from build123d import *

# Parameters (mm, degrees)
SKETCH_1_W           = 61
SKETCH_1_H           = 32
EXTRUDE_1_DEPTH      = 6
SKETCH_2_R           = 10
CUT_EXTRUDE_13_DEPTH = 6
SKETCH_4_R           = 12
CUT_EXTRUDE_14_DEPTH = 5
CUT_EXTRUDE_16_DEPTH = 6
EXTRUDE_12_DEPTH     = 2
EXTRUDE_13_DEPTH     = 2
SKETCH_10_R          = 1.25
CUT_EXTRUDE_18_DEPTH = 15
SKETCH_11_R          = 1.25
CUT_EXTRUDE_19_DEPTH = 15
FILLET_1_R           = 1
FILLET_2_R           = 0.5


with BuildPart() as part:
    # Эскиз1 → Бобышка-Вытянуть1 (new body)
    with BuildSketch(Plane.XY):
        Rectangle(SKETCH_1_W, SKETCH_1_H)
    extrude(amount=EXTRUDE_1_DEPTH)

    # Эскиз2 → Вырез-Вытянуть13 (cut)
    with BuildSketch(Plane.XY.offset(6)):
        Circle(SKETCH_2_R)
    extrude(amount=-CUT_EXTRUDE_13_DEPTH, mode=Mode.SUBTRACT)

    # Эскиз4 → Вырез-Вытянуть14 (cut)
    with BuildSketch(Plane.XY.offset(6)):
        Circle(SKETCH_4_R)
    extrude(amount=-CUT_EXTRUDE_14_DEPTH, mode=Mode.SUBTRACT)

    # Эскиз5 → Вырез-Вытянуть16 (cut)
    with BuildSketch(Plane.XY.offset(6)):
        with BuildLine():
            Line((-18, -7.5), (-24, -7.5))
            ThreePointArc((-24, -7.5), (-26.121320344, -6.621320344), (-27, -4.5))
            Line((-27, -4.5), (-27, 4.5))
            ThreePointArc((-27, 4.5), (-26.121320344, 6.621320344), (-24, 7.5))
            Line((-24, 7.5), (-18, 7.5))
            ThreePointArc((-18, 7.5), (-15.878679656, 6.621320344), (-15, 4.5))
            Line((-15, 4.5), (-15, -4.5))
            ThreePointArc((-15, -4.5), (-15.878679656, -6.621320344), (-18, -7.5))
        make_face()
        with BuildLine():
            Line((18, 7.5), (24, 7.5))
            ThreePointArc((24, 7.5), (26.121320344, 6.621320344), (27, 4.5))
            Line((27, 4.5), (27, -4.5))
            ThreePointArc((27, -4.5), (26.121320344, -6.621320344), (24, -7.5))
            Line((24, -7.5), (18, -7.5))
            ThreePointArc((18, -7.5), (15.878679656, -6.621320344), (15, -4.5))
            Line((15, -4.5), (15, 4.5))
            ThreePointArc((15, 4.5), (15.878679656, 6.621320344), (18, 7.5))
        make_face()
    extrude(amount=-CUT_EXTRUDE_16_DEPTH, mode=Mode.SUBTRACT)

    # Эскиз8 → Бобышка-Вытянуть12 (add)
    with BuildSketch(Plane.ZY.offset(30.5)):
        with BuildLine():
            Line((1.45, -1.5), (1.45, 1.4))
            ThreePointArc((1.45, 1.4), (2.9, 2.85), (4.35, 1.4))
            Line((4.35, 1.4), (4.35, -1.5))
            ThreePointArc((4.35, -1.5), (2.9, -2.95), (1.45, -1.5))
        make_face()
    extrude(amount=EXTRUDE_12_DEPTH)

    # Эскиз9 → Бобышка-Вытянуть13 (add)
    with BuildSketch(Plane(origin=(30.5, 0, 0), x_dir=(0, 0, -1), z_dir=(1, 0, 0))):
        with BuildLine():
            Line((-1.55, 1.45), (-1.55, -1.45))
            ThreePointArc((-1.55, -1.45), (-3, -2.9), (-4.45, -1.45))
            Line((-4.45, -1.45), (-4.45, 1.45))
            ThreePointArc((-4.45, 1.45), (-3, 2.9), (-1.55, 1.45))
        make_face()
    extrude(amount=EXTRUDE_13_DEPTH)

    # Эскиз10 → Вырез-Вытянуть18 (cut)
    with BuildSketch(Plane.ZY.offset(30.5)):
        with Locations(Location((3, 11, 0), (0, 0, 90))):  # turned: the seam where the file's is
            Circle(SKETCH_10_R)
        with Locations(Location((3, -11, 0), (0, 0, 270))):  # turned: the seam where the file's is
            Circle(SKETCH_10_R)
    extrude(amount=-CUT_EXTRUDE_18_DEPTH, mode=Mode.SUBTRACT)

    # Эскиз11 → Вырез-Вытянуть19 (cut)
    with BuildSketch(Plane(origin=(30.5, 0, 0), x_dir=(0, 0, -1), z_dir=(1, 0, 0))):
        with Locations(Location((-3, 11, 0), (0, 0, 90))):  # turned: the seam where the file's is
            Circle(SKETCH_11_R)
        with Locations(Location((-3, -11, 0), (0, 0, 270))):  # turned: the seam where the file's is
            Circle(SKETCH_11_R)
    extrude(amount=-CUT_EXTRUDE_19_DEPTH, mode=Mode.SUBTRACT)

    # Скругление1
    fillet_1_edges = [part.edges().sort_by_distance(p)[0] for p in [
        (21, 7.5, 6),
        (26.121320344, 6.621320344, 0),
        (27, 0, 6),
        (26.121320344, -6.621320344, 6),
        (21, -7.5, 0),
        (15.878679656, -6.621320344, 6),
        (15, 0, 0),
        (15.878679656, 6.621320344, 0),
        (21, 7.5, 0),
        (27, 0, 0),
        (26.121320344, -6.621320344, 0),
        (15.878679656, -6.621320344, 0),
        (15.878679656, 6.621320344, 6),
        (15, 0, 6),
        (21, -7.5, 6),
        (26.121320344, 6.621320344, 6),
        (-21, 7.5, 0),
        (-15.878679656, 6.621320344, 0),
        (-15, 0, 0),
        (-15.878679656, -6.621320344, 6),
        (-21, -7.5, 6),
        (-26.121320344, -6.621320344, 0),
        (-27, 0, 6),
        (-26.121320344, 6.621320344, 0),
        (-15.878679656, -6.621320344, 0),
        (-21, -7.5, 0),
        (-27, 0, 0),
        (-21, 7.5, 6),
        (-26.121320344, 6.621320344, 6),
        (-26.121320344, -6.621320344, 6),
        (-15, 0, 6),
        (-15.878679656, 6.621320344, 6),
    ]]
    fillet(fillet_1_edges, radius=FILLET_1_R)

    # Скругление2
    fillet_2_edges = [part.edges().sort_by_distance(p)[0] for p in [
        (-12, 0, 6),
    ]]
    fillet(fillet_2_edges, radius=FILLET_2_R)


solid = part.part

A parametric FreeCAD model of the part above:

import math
import FreeCAD as App
import Part
import Sketcher
Q = App.Units.Quantity


def edges_at(feature, points):
    """Names of the edges that pass closest to the given points."""
    edges = feature.Shape.Edges
    near = lambda p: min(range(len(edges)), key=lambda i: edges[i].distToShape(Part.Vertex(*p))[0])
    return sorted({f"Edge{near(p) + 1}" for p in points})


def add_polygon(sketch, points):
    """Adds a closed chain of lines whose ends are joined by coincident constraints."""
    first, n = sketch.GeometryCount, len(points)
    for a, b in zip(points, points[1:] + points[:1]):
        sketch.addGeometry(Part.LineSegment(App.Vector(*a, 0), App.Vector(*b, 0)), False)
    for i in range(n):
        sketch.addConstraint(Sketcher.Constraint("Coincident", first + i, 2, first + (i + 1) % n, 1))

doc = App.newDocument("Part")
params = doc.addObject("Spreadsheet::Sheet", "Params")
for row, (alias, value) in enumerate([
    ("sketch1_width", "61 mm"),
    ("sketch1_height", "32 mm"),
    ("pad1_length", "6 mm"),
    ("sketch2_diameter", "20 mm"),
    ("pocket1_length", "6 mm"),
    ("sketch3_diameter", "24 mm"),
    ("pocket2_length", "5 mm"),
    ("sketch4_radius", "3 mm"),
    ("sketch4_width", "6 mm"),
    ("sketch4_height", "9 mm"),
    ("pocket3_length", "6 mm"),
    ("sketch5_radius", "1.45 mm"),
    ("sketch5_width", "2.9 mm"),
    ("pad2_length", "2 mm"),
    ("sketch6_radius", "1.45 mm"),
    ("sketch6_width", "2.9 mm"),
    ("pad3_length", "2 mm"),
    ("sketch7_diameter", "2.5 mm"),
    ("pocket4_length", "15 mm"),
    ("sketch8_diameter", "2.5 mm"),
    ("pocket5_length", "15 mm"),
    ("fillet_radius", "1 mm"),
    ("fillet2_radius", "0.5 mm"),
], start=1):
    params.set(f"A{row}", alias)
    params.set(f"B{row}", "=" + value)
    params.setAlias(f"B{row}", alias)

body = doc.addObject("PartDesign::Body", "Body")

sketch1 = body.newObject("Sketcher::SketchObject", "Sketch")
sketch1.AttachmentSupport = (doc.getObject("XY_Plane"), [""])
sketch1.MapMode = "FlatFace"
add_polygon(sketch1, [(-30.5, 16), (-30.5, -16), (30.5, -16), (30.5, 16)])
sketch1.addConstraint(Sketcher.Constraint("Vertical", 0))
sketch1.addConstraint(Sketcher.Constraint("Horizontal", 1))
sketch1.addConstraint(Sketcher.Constraint("Vertical", 2))
sketch1.addConstraint(Sketcher.Constraint("Horizontal", 3))
sketch1.addConstraint(Sketcher.Constraint("Symmetric", 0, 2, 2, 2, -1, 1))
sketch1.addConstraint(Sketcher.Constraint("DistanceX", 1, 1, 1, 2, Q("61 mm")))
sketch1.addConstraint(Sketcher.Constraint("DistanceY", 0, 2, 0, 1, Q("32 mm")))
sketch1.setExpression("Constraints[9]", "Params.sketch1_width")
sketch1.setExpression("Constraints[10]", "Params.sketch1_height")
pad1 = body.newObject("PartDesign::Pad", "Pad")
pad1.Profile = sketch1
pad1.setExpression("Length", "Params.pad1_length")

sketch2 = body.newObject("Sketcher::SketchObject", "Sketch001")
sketch2.AttachmentSupport = (doc.getObject("XY_Plane"), [""])
sketch2.MapMode = "FlatFace"
sketch2.AttachmentOffset = App.Placement(App.Vector(0, 0, 6), App.Rotation())
sketch2.addGeometry(Part.Circle(App.Vector(0, 0, 0), App.Vector(0, 0, 1), 10), False)
sketch2.addConstraint(Sketcher.Constraint("Coincident", 0, 3, -1, 1))
sketch2.addConstraint(Sketcher.Constraint("Diameter", 0, Q("20 mm")))
sketch2.setExpression("Constraints[1]", "Params.sketch2_diameter")
pocket1 = body.newObject("PartDesign::Pocket", "Pocket")
pocket1.Profile = sketch2
pocket1.setExpression("Length", "Params.pocket1_length")

sketch3 = body.newObject("Sketcher::SketchObject", "Sketch002")
sketch3.AttachmentSupport = (doc.getObject("XY_Plane"), [""])
sketch3.MapMode = "FlatFace"
sketch3.AttachmentOffset = App.Placement(App.Vector(0, 0, 6), App.Rotation())
sketch3.addGeometry(Part.Circle(App.Vector(0, 0, 0), App.Vector(0, 0, 1), 12), False)
sketch3.addConstraint(Sketcher.Constraint("Coincident", 0, 3, -1, 1))
sketch3.addConstraint(Sketcher.Constraint("Diameter", 0, Q("24 mm")))
sketch3.setExpression("Constraints[1]", "Params.sketch3_diameter")
pocket2 = body.newObject("PartDesign::Pocket", "Pocket001")
pocket2.Profile = sketch3
pocket2.setExpression("Length", "Params.pocket2_length")

sketch4 = body.newObject("Sketcher::SketchObject", "Sketch003")
sketch4.AttachmentSupport = (doc.getObject("XY_Plane"), [""])
sketch4.MapMode = "FlatFace"
sketch4.AttachmentOffset = App.Placement(App.Vector(0, 0, 6), App.Rotation())
sketch4.addGeometry(Part.LineSegment(App.Vector(-24, -7.5, 0), App.Vector(-18, -7.5, 0)), False)
sketch4.addGeometry(Part.ArcOfCircle(Part.Circle(App.Vector(-18, -4.5, 0), App.Vector(0, 0, 1), 3), math.radians(-90), math.radians(0)), False)
sketch4.addGeometry(Part.LineSegment(App.Vector(-15, -4.5, 0), App.Vector(-15, 4.5, 0)), False)
sketch4.addGeometry(Part.ArcOfCircle(Part.Circle(App.Vector(-18, 4.5, 0), App.Vector(0, 0, 1), 3), math.radians(0), math.radians(90)), False)
sketch4.addGeometry(Part.LineSegment(App.Vector(-18, 7.5, 0), App.Vector(-24, 7.5, 0)), False)
sketch4.addGeometry(Part.ArcOfCircle(Part.Circle(App.Vector(-24, 4.5, 0), App.Vector(0, 0, 1), 3), math.radians(90), math.radians(180)), False)
sketch4.addGeometry(Part.LineSegment(App.Vector(-27, 4.5, 0), App.Vector(-27, -4.5, 0)), False)
sketch4.addGeometry(Part.ArcOfCircle(Part.Circle(App.Vector(-24, -4.5, 0), App.Vector(0, 0, 1), 3), math.radians(180), math.radians(270)), False)
sketch4.addGeometry(Part.LineSegment(App.Vector(24, 7.5, 0), App.Vector(18, 7.5, 0)), False)
sketch4.addGeometry(Part.ArcOfCircle(Part.Circle(App.Vector(18, 4.5, 0), App.Vector(0, 0, 1), 3), math.radians(90), math.radians(180)), False)
sketch4.addGeometry(Part.LineSegment(App.Vector(15, 4.5, 0), App.Vector(15, -4.5, 0)), False)
sketch4.addGeometry(Part.ArcOfCircle(Part.Circle(App.Vector(18, -4.5, 0), App.Vector(0, 0, 1), 3), math.radians(180), math.radians(270)), False)
sketch4.addGeometry(Part.LineSegment(App.Vector(18, -7.5, 0), App.Vector(24, -7.5, 0)), False)
sketch4.addGeometry(Part.ArcOfCircle(Part.Circle(App.Vector(24, -4.5, 0), App.Vector(0, 0, 1), 3), math.radians(-90), math.radians(0)), False)
sketch4.addGeometry(Part.LineSegment(App.Vector(27, -4.5, 0), App.Vector(27, 4.5, 0)), False)
sketch4.addGeometry(Part.ArcOfCircle(Part.Circle(App.Vector(24, 4.5, 0), App.Vector(0, 0, 1), 3), math.radians(0), math.radians(90)), False)
sketch4.addConstraint(Sketcher.Constraint("Tangent", 0, 2, 1, 1))
sketch4.addConstraint(Sketcher.Constraint("Tangent", 1, 2, 2, 1))
sketch4.addConstraint(Sketcher.Constraint("Tangent", 2, 2, 3, 1))
sketch4.addConstraint(Sketcher.Constraint("Tangent", 3, 2, 4, 1))
sketch4.addConstraint(Sketcher.Constraint("Tangent", 4, 2, 5, 1))
sketch4.addConstraint(Sketcher.Constraint("Tangent", 5, 2, 6, 1))
sketch4.addConstraint(Sketcher.Constraint("Tangent", 6, 2, 7, 1))
sketch4.addConstraint(Sketcher.Constraint("Tangent", 7, 2, 0, 1))
sketch4.addConstraint(Sketcher.Constraint("Tangent", 8, 2, 9, 1))
sketch4.addConstraint(Sketcher.Constraint("Tangent", 9, 2, 10, 1))
sketch4.addConstraint(Sketcher.Constraint("Tangent", 10, 2, 11, 1))
sketch4.addConstraint(Sketcher.Constraint("Tangent", 11, 2, 12, 1))
sketch4.addConstraint(Sketcher.Constraint("Tangent", 12, 2, 13, 1))
sketch4.addConstraint(Sketcher.Constraint("Tangent", 13, 2, 14, 1))
sketch4.addConstraint(Sketcher.Constraint("Tangent", 14, 2, 15, 1))
sketch4.addConstraint(Sketcher.Constraint("Tangent", 15, 2, 8, 1))
sketch4.addConstraint(Sketcher.Constraint("Horizontal", 0))
sketch4.addConstraint(Sketcher.Constraint("Vertical", 2))
sketch4.addConstraint(Sketcher.Constraint("Horizontal", 4))
sketch4.addConstraint(Sketcher.Constraint("Vertical", 6))
sketch4.addConstraint(Sketcher.Constraint("Horizontal", 8))
sketch4.addConstraint(Sketcher.Constraint("Vertical", 10))
sketch4.addConstraint(Sketcher.Constraint("Horizontal", 12))
sketch4.addConstraint(Sketcher.Constraint("Vertical", 14))
sketch4.addConstraint(Sketcher.Constraint("Equal", 1, 3))
sketch4.addConstraint(Sketcher.Constraint("Equal", 3, 5))
sketch4.addConstraint(Sketcher.Constraint("Equal", 5, 7))
sketch4.addConstraint(Sketcher.Constraint("Equal", 7, 9))
sketch4.addConstraint(Sketcher.Constraint("Equal", 9, 11))
sketch4.addConstraint(Sketcher.Constraint("Equal", 11, 13))
sketch4.addConstraint(Sketcher.Constraint("Equal", 13, 15))
sketch4.addConstraint(Sketcher.Constraint("Symmetric", 1, 3, 9, 3, -1, 1))
sketch4.addConstraint(Sketcher.Constraint("Symmetric", 5, 3, 13, 3, -1, 1))
sketch4.addConstraint(Sketcher.Constraint("Horizontal", 5, 3, 9, 3))
sketch4.addConstraint(Sketcher.Constraint("Radius", 1, Q("3 mm")))
sketch4.addConstraint(Sketcher.Constraint("DistanceX", 0, 1, 0, 2, Q("6 mm")))
sketch4.addConstraint(Sketcher.Constraint("DistanceY", 2, 1, 2, 2, Q("9 mm")))
sketch4.addConstraint(Sketcher.Constraint("DistanceX", 1, 3, -1, 1, Q("18 mm")))
sketch4.setExpression("Constraints[34]", "Params.sketch4_radius")
sketch4.setExpression("Constraints[35]", "Params.sketch4_width")
sketch4.setExpression("Constraints[36]", "Params.sketch4_height")
pocket3 = body.newObject("PartDesign::Pocket", "Pocket002")
pocket3.Profile = sketch4
pocket3.setExpression("Length", "Params.pocket3_length")

sketch5 = body.newObject("Sketcher::SketchObject", "Sketch004")
sketch5.AttachmentSupport = (doc.getObject("YZ_Plane"), [""])
sketch5.MapMode = "FlatFace"
sketch5.AttachmentOffset = App.Placement(App.Vector(0, 0, -30.5), App.Rotation())
sketch5.addGeometry(Part.LineSegment(App.Vector(1.4, 1.45, 0), App.Vector(-1.5, 1.45, 0)), False)
sketch5.addGeometry(Part.ArcOfCircle(Part.Circle(App.Vector(-1.5, 2.9, 0), App.Vector(0, 0, 1), 1.45), math.radians(90), math.radians(270)), False)
sketch5.addGeometry(Part.LineSegment(App.Vector(-1.5, 4.35, 0), App.Vector(1.4, 4.35, 0)), False)
sketch5.addGeometry(Part.ArcOfCircle(Part.Circle(App.Vector(1.4, 2.9, 0), App.Vector(0, 0, 1), 1.45), math.radians(-90), math.radians(90)), False)
sketch5.addConstraint(Sketcher.Constraint("Tangent", 0, 2, 1, 2))
sketch5.addConstraint(Sketcher.Constraint("Tangent", 1, 1, 2, 1))
sketch5.addConstraint(Sketcher.Constraint("Tangent", 2, 2, 3, 2))
sketch5.addConstraint(Sketcher.Constraint("Tangent", 3, 1, 0, 1))
sketch5.addConstraint(Sketcher.Constraint("Horizontal", 0))
sketch5.addConstraint(Sketcher.Constraint("Horizontal", 2))
sketch5.addConstraint(Sketcher.Constraint("Radius", 1, Q("1.45 mm")))
sketch5.addConstraint(Sketcher.Constraint("DistanceX", 0, 2, 0, 1, Q("2.9 mm")))
sketch5.addConstraint(Sketcher.Constraint("DistanceX", 1, 3, -1, 1, Q("1.5 mm")))
sketch5.addConstraint(Sketcher.Constraint("DistanceY", -1, 1, 1, 3, Q("2.9 mm")))
sketch5.setExpression("Constraints[6]", "Params.sketch5_radius")
sketch5.setExpression("Constraints[7]", "Params.sketch5_width")
pad2 = body.newObject("PartDesign::Pad", "Pad001")
pad2.Profile = sketch5
pad2.setExpression("Length", "Params.pad2_length")
pad2.Reversed = True

sketch6 = body.newObject("Sketcher::SketchObject", "Sketch005")
sketch6.AttachmentSupport = (doc.getObject("YZ_Plane"), [""])
sketch6.MapMode = "FlatFace"
sketch6.AttachmentOffset = App.Placement(App.Vector(0, 0, 30.5), App.Rotation())
sketch6.addGeometry(Part.LineSegment(App.Vector(-1.45, 1.55, 0), App.Vector(1.45, 1.55, 0)), False)
sketch6.addGeometry(Part.ArcOfCircle(Part.Circle(App.Vector(1.45, 3, 0), App.Vector(0, 0, 1), 1.45), math.radians(-90), math.radians(90)), False)
sketch6.addGeometry(Part.LineSegment(App.Vector(1.45, 4.45, 0), App.Vector(-1.45, 4.45, 0)), False)
sketch6.addGeometry(Part.ArcOfCircle(Part.Circle(App.Vector(-1.45, 3, 0), App.Vector(0, 0, 1), 1.45), math.radians(90), math.radians(270)), False)
sketch6.addConstraint(Sketcher.Constraint("Tangent", 0, 2, 1, 1))
sketch6.addConstraint(Sketcher.Constraint("Tangent", 1, 2, 2, 1))
sketch6.addConstraint(Sketcher.Constraint("Tangent", 2, 2, 3, 1))
sketch6.addConstraint(Sketcher.Constraint("Tangent", 3, 2, 0, 1))
sketch6.addConstraint(Sketcher.Constraint("Horizontal", 0))
sketch6.addConstraint(Sketcher.Constraint("Horizontal", 2))
sketch6.addConstraint(Sketcher.Constraint("Radius", 1, Q("1.45 mm")))
sketch6.addConstraint(Sketcher.Constraint("DistanceX", 0, 1, 0, 2, Q("2.9 mm")))
sketch6.addConstraint(Sketcher.Constraint("DistanceY", -1, 1, 1, 3, Q("3 mm")))
sketch6.addConstraint(Sketcher.Constraint("DistanceX", -1, 1, 1, 3, Q("1.45 mm")))
sketch6.setExpression("Constraints[6]", "Params.sketch6_radius")
sketch6.setExpression("Constraints[7]", "Params.sketch6_width")
pad3 = body.newObject("PartDesign::Pad", "Pad002")
pad3.Profile = sketch6
pad3.setExpression("Length", "Params.pad3_length")

sketch7 = body.newObject("Sketcher::SketchObject", "Sketch006")
sketch7.AttachmentSupport = (doc.getObject("YZ_Plane"), [""])
sketch7.MapMode = "FlatFace"
sketch7.AttachmentOffset = App.Placement(App.Vector(0, 0, -30.5), App.Rotation())
sketch7.addGeometry(Part.Circle(App.Vector(11, 3, 0), App.Vector(0, 0, 1), 1.25), False)
sketch7.addGeometry(Part.Circle(App.Vector(-11, 3, 0), App.Vector(0, 0, 1), 1.25), False)
sketch7.addConstraint(Sketcher.Constraint("Equal", 0, 1))
sketch7.addConstraint(Sketcher.Constraint("Symmetric", 0, 3, 1, 3, -2))
sketch7.addConstraint(Sketcher.Constraint("Diameter", 0, Q("2.5 mm")))
sketch7.addConstraint(Sketcher.Constraint("DistanceX", -1, 1, 0, 3, Q("11 mm")))
sketch7.addConstraint(Sketcher.Constraint("DistanceY", -1, 1, 0, 3, Q("3 mm")))
sketch7.setExpression("Constraints[2]", "Params.sketch7_diameter")
pocket4 = body.newObject("PartDesign::Pocket", "Pocket003")
pocket4.Profile = sketch7
pocket4.setExpression("Length", "Params.pocket4_length")
pocket4.Reversed = True

sketch8 = body.newObject("Sketcher::SketchObject", "Sketch007")
sketch8.AttachmentSupport = (doc.getObject("YZ_Plane"), [""])
sketch8.MapMode = "FlatFace"
sketch8.AttachmentOffset = App.Placement(App.Vector(0, 0, 30.5), App.Rotation())
sketch8.addGeometry(Part.Circle(App.Vector(11, 3, 0), App.Vector(0, 0, 1), 1.25), False)
sketch8.addGeometry(Part.Circle(App.Vector(-11, 3, 0), App.Vector(0, 0, 1), 1.25), False)
sketch8.addConstraint(Sketcher.Constraint("Equal", 0, 1))
sketch8.addConstraint(Sketcher.Constraint("Symmetric", 0, 3, 1, 3, -2))
sketch8.addConstraint(Sketcher.Constraint("Diameter", 0, Q("2.5 mm")))
sketch8.addConstraint(Sketcher.Constraint("DistanceX", -1, 1, 0, 3, Q("11 mm")))
sketch8.addConstraint(Sketcher.Constraint("DistanceY", -1, 1, 0, 3, Q("3 mm")))
sketch8.setExpression("Constraints[2]", "Params.sketch8_diameter")
pocket5 = body.newObject("PartDesign::Pocket", "Pocket004")
pocket5.Profile = sketch8
pocket5.setExpression("Length", "Params.pocket5_length")
doc.recompute()

fillet = body.newObject("PartDesign::Fillet", "Fillet")
fillet.Base = (pocket5, edges_at(pocket5, [
    (21, 7.5, 6),
    (26.121, 6.621, 0),
    (27, 0, 6),
    (26.121, -6.621, 6),
    (21, -7.5, 0),
    (15.879, -6.621, 6),
    (15, 0, 0),
    (15.879, 6.621, 0),
    (21, 7.5, 0),
    (27, 0, 0),
    (26.121, -6.621, 0),
    (15.879, -6.621, 0),
    (15.879, 6.621, 6),
    (15, 0, 6),
    (21, -7.5, 6),
    (26.121, 6.621, 6),
    (-21, 7.5, 0),
    (-15.879, 6.621, 0),
    (-15, 0, 0),
    (-15.879, -6.621, 6),
    (-21, -7.5, 6),
    (-26.121, -6.621, 0),
    (-27, 0, 6),
    (-26.121, 6.621, 0),
    (-15.879, -6.621, 0),
    (-21, -7.5, 0),
    (-27, 0, 0),
    (-21, 7.5, 6),
    (-26.121, 6.621, 6),
    (-26.121, -6.621, 6),
    (-15, 0, 6),
    (-15.879, 6.621, 6),
]))
fillet.setExpression("Radius", "Params.fillet_radius")
doc.recompute()

fillet2 = body.newObject("PartDesign::Fillet", "Fillet001")
fillet2.Base = (fillet, edges_at(fillet, [(-12, 0, 6)]))
fillet2.setExpression("Radius", "Params.fillet2_radius")

doc.recompute()
